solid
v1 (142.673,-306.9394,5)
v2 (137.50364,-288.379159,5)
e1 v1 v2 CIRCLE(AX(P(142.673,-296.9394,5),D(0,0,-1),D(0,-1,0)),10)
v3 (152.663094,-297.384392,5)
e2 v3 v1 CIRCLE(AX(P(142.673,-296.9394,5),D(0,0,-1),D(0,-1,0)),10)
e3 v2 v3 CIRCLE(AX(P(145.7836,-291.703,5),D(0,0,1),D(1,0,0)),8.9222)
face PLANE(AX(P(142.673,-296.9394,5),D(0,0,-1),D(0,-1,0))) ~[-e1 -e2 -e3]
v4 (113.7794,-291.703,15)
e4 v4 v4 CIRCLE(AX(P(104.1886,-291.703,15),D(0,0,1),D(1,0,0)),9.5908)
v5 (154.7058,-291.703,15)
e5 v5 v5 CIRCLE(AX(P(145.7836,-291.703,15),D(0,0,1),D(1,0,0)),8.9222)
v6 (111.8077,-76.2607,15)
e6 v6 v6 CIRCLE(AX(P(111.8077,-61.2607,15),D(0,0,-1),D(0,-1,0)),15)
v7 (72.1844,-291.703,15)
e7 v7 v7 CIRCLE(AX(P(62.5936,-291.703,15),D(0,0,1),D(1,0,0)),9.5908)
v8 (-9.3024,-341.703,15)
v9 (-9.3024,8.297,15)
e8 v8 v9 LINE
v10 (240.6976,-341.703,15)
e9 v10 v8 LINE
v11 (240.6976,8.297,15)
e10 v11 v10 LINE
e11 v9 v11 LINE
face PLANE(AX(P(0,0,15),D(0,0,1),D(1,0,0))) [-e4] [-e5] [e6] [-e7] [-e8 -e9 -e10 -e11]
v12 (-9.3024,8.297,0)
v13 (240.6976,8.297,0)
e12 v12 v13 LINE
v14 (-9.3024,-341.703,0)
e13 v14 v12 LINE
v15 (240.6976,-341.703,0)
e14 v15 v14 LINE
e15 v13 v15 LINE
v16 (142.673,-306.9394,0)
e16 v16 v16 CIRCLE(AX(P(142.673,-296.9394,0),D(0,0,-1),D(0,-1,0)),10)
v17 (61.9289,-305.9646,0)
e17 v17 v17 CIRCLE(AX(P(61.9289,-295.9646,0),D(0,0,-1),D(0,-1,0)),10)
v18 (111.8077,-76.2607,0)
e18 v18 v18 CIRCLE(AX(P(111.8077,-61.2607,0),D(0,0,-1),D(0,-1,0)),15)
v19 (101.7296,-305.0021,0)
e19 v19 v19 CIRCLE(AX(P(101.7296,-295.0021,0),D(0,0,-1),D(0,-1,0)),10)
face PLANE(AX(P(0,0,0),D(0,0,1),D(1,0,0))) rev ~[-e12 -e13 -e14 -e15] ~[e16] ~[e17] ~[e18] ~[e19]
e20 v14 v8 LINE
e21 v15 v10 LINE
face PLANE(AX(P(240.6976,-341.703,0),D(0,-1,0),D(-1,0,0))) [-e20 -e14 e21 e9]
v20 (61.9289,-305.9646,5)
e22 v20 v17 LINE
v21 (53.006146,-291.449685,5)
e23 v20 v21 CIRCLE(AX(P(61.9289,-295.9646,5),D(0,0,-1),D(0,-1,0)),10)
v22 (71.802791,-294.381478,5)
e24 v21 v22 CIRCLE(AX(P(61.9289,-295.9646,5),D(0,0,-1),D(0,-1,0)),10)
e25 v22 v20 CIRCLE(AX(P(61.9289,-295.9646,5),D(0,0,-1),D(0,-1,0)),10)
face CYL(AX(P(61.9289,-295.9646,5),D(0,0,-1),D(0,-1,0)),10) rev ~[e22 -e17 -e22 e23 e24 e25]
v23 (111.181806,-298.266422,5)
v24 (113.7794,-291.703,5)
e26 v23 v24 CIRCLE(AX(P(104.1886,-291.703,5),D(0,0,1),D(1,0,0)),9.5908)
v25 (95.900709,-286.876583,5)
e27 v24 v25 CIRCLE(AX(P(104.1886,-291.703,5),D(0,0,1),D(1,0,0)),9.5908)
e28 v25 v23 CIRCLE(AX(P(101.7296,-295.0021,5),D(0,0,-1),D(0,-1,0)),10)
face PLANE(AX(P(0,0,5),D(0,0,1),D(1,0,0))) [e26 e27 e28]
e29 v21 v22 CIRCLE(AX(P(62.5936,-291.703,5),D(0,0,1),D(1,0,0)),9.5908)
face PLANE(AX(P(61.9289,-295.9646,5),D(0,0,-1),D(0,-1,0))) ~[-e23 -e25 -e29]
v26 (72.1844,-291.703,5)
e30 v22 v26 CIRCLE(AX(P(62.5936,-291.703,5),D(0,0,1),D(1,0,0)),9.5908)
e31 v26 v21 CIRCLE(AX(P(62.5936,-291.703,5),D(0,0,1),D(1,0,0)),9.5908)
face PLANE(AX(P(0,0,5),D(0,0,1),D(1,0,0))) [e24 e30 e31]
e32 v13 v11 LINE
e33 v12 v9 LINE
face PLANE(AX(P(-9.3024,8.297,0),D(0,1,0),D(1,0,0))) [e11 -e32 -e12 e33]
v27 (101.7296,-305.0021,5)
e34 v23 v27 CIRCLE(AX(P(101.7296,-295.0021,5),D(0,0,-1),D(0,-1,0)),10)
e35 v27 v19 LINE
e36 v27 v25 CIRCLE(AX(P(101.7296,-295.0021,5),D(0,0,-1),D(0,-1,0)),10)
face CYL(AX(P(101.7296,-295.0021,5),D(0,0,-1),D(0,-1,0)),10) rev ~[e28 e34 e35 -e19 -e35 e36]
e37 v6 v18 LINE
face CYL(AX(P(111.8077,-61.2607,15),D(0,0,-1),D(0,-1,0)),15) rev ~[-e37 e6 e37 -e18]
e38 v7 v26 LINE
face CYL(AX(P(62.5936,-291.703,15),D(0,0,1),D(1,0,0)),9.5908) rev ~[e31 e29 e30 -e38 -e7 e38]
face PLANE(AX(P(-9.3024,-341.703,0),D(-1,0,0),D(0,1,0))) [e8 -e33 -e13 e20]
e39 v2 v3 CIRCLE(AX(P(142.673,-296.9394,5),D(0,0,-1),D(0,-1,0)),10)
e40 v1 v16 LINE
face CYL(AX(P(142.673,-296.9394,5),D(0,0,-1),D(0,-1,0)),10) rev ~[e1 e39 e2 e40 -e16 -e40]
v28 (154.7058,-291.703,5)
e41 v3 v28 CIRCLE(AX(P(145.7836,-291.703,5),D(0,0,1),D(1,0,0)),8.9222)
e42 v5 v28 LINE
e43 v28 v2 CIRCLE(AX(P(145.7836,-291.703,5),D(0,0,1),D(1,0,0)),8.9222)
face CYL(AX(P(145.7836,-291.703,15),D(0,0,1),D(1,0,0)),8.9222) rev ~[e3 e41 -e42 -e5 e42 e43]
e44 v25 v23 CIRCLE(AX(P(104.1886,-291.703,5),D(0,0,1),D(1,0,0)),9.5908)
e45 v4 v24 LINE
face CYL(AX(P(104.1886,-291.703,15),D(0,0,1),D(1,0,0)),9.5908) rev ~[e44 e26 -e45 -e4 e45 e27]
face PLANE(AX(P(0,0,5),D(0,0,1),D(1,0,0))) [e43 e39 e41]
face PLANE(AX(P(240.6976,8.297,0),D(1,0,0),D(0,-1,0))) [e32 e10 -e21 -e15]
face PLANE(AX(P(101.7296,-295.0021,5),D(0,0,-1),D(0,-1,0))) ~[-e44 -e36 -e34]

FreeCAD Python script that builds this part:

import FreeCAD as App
import Part
import Sketcher
from FreeCAD import Vector
Q = App.Units.Quantity


def add_polygon(sketch, points):
    """Adds a closed chain of lines whose ends are joined by coincident constraints."""
    first, n = sketch.GeometryCount, len(points)
    for a, b in zip(points, points[1:] + points[:1]):
        sketch.addGeometry(Part.LineSegment(App.Vector(*a, 0), App.Vector(*b, 0)), False)
    for i in range(n):
        sketch.addConstraint(Sketcher.Constraint("Coincident", first + i, 2, first + (i + 1) % n, 1))

doc = App.newDocument("Part")
body = doc.addObject("PartDesign::Body", "Body")

# Sketch on XY plane
sketch1 = body.newObject("Sketcher::SketchObject", "Sketch")
sketch1.AttachmentSupport = (doc.getObject("XY_Plane"), [""])
sketch1.MapMode = "FlatFace"
add_polygon(sketch1, [(241, 8), (-9, 8), (-9, -342), (241, -342)])  # lines 0-3
sketch1.addConstraint(Sketcher.Constraint("Horizontal", 0))
sketch1.addConstraint(Sketcher.Constraint("Vertical", 1))
sketch1.addConstraint(Sketcher.Constraint("Horizontal", 2))
sketch1.addConstraint(Sketcher.Constraint("Vertical", 3))
sketch1.addConstraint(Sketcher.Constraint("DistanceX", 0, 2, 0, 1, Q("250 mm")))
sketch1.addConstraint(Sketcher.Constraint("DistanceY", 1, 2, 1, 1, Q("350 mm")))
sketch1.addConstraint(Sketcher.Constraint("DistanceY", -1, 1, 0, 2, Q("8.297 mm")))
sketch1.addConstraint(Sketcher.Constraint("DistanceX", 0, 2, -1, 1, Q("9.3024 mm")))
pad1 = body.newObject("PartDesign::Pad", "Pad")
pad1.Profile = sketch1
pad1.Length = 15

# Sketch on XY plane
sketch2 = body.newObject("Sketcher::SketchObject", "Sketch001")
sketch2.AttachmentSupport = (doc.getObject("XY_Plane"), [""])
sketch2.MapMode = "FlatFace"
sketch2.AttachmentOffset = App.Placement(Vector(0, 0, 15), App.Rotation())
sketch2.addGeometry(Part.Circle(Vector(104, -292, 0), Vector(0, 0, 1), 10), False)
sketch2.addGeometry(Part.Circle(Vector(63, -292, 0), Vector(0, 0, 1), 10), False)
sketch2.addGeometry(Part.Circle(Vector(146, -292, 0), Vector(0, 0, 1), 9), False)
sketch2.addConstraint(Sketcher.Constraint("Equal", 0, 1))
sketch2.addConstraint(Sketcher.Constraint("Horizontal", 0, 3, 1, 3))
sketch2.addConstraint(Sketcher.Constraint("Horizontal", 1, 3, 2, 3))
sketch2.addConstraint(Sketcher.Constraint("Diameter", 0, Q("19.1816 mm")))
sketch2.addConstraint(Sketcher.Constraint("Diameter", 2, Q("17.8444 mm")))
sketch2.addConstraint(Sketcher.Constraint("DistanceX", 1, 3, 2, 3, Q("83.19 mm")))
sketch2.addConstraint(Sketcher.Constraint("DistanceY", 0, 3, -1, 1, Q("291.703 mm")))
sketch2.addConstraint(Sketcher.Constraint("DistanceX", 1, 3, 0, 3, Q("41.595 mm")))
sketch2.addConstraint(Sketcher.Constraint("DistanceX", -1, 1, 0, 3, Q("104.1886 mm")))
pocket1 = body.newObject("PartDesign::Pocket", "Pocket")
pocket1.Profile = sketch2
pocket1.Length = 10

# Sketch on XY plane
sketch3 = body.newObject("Sketcher::SketchObject", "Sketch002")
sketch3.AttachmentSupport = (doc.getObject("XY_Plane"), [""])
sketch3.MapMode = "FlatFace"
sketch3.AttachmentOffset = App.Placement(Vector(0, 0, 5), App.Rotation())
sketch3.addGeometry(Part.Circle(Vector(62, -296, 0), Vector(0, 0, 1), 10), False)
sketch3.addConstraint(Sketcher.Constraint("Diameter", 0, Q("20 mm")))
sketch3.addConstraint(Sketcher.Constraint("DistanceX", -1, 1, 0, 3, Q("61.929 mm")))
sketch3.addConstraint(Sketcher.Constraint("DistanceY", 0, 3, -1, 1, Q("295.9646 mm")))
doc.recompute()
hole = body.newObject("PartDesign::Hole", "Hole")
hole.Profile = sketch3
hole.ThreadType = "None"
hole.Diameter = 20
hole.DepthType = "ThroughAll"

# Sketch on XY plane
sketch4 = body.newObject("Sketcher::SketchObject", "Sketch003")
sketch4.AttachmentSupport = (doc.getObject("XY_Plane"), [""])
sketch4.MapMode = "FlatFace"
sketch4.AttachmentOffset = App.Placement(Vector(0, 0, 5), App.Rotation())
sketch4.addGeometry(Part.Circle(Vector(102, -295, 0), Vector(0, 0, 1), 10), False)
sketch4.addConstraint(Sketcher.Constraint("Diameter", 0, Q("20 mm")))
sketch4.addConstraint(Sketcher.Constraint("DistanceY", 0, 3, -1, 1, Q("295.002 mm")))
sketch4.addConstraint(Sketcher.Constraint("DistanceX", -1, 1, 0, 3, Q("101.7296 mm")))
doc.recompute()
hole2 = body.newObject("PartDesign::Hole", "Hole001")
hole2.Profile = sketch4
hole2.ThreadType = "None"
hole2.Diameter = 20
hole2.DepthType = "ThroughAll"

# Sketch on XY plane
sketch5 = body.newObject("Sketcher::SketchObject", "Sketch004")
sketch5.AttachmentSupport = (doc.getObject("XY_Plane"), [""])
sketch5.MapMode = "FlatFace"
sketch5.AttachmentOffset = App.Placement(Vector(0, 0, 5), App.Rotation())
sketch5.addGeometry(Part.Circle(Vector(143, -297, 0), Vector(0, 0, 1), 10), False)
sketch5.addConstraint(Sketcher.Constraint("Diameter", 0, Q("20 mm")))
sketch5.addConstraint(Sketcher.Constraint("DistanceX", -1, 1, 0, 3, Q("142.673 mm")))
sketch5.addConstraint(Sketcher.Constraint("DistanceY", 0, 3, -1, 1, Q("296.9394 mm")))
doc.recompute()
hole3 = body.newObject("PartDesign::Hole", "Hole002")
hole3.Profile = sketch5
hole3.ThreadType = "None"
hole3.Diameter = 20
hole3.DepthType = "ThroughAll"

# Sketch on XY plane
sketch6 = body.newObject("Sketcher::SketchObject", "Sketch005")
sketch6.AttachmentSupport = (doc.getObject("XY_Plane"), [""])
sketch6.MapMode = "FlatFace"
sketch6.AttachmentOffset = App.Placement(Vector(0, 0, 15), App.Rotation())
sketch6.addGeometry(Part.Circle(Vector(112, -61, 0), Vector(0, 0, 1), 10), False)
sketch6.addConstraint(Sketcher.Constraint("Diameter", 0, Q("20 mm")))
sketch6.addConstraint(Sketcher.Constraint("DistanceX", -1, 1, 0, 3, Q("111.8077 mm")))
sketch6.addConstraint(Sketcher.Constraint("DistanceY", 0, 3, -1, 1, Q("61.2607 mm")))
doc.recompute()
hole4 = body.newObject("PartDesign::Hole", "Hole003")
hole4.Profile = sketch6
hole4.ThreadType = "None"
hole4.Diameter = 20
hole4.DepthType = "ThroughAll"

# Sketch on XY plane
sketch7 = body.newObject("Sketcher::SketchObject", "Sketch006")
sketch7.AttachmentSupport = (doc.getObject("XY_Plane"), [""])
sketch7.MapMode = "FlatFace"
sketch7.AttachmentOffset = App.Placement(Vector(0, 0, 15), App.Rotation())
sketch7.addGeometry(Part.Circle(Vector(112, -61, 0), Vector(0, 0, 1), 15), False)
sketch7.addConstraint(Sketcher.Constraint("Diameter", 0, Q("30 mm")))
sketch7.addConstraint(Sketcher.Constraint("DistanceX", -1, 1, 0, 3, Q("111.8077 mm")))
sketch7.addConstraint(Sketcher.Constraint("DistanceY", 0, 3, -1, 1, Q("61.2607 mm")))
doc.recompute()
hole5 = body.newObject("PartDesign::Hole", "Hole004")
hole5.Profile = sketch7
hole5.ThreadType = "None"
hole5.Diameter = 30
hole5.DepthType = "ThroughAll"

doc.recompute()
